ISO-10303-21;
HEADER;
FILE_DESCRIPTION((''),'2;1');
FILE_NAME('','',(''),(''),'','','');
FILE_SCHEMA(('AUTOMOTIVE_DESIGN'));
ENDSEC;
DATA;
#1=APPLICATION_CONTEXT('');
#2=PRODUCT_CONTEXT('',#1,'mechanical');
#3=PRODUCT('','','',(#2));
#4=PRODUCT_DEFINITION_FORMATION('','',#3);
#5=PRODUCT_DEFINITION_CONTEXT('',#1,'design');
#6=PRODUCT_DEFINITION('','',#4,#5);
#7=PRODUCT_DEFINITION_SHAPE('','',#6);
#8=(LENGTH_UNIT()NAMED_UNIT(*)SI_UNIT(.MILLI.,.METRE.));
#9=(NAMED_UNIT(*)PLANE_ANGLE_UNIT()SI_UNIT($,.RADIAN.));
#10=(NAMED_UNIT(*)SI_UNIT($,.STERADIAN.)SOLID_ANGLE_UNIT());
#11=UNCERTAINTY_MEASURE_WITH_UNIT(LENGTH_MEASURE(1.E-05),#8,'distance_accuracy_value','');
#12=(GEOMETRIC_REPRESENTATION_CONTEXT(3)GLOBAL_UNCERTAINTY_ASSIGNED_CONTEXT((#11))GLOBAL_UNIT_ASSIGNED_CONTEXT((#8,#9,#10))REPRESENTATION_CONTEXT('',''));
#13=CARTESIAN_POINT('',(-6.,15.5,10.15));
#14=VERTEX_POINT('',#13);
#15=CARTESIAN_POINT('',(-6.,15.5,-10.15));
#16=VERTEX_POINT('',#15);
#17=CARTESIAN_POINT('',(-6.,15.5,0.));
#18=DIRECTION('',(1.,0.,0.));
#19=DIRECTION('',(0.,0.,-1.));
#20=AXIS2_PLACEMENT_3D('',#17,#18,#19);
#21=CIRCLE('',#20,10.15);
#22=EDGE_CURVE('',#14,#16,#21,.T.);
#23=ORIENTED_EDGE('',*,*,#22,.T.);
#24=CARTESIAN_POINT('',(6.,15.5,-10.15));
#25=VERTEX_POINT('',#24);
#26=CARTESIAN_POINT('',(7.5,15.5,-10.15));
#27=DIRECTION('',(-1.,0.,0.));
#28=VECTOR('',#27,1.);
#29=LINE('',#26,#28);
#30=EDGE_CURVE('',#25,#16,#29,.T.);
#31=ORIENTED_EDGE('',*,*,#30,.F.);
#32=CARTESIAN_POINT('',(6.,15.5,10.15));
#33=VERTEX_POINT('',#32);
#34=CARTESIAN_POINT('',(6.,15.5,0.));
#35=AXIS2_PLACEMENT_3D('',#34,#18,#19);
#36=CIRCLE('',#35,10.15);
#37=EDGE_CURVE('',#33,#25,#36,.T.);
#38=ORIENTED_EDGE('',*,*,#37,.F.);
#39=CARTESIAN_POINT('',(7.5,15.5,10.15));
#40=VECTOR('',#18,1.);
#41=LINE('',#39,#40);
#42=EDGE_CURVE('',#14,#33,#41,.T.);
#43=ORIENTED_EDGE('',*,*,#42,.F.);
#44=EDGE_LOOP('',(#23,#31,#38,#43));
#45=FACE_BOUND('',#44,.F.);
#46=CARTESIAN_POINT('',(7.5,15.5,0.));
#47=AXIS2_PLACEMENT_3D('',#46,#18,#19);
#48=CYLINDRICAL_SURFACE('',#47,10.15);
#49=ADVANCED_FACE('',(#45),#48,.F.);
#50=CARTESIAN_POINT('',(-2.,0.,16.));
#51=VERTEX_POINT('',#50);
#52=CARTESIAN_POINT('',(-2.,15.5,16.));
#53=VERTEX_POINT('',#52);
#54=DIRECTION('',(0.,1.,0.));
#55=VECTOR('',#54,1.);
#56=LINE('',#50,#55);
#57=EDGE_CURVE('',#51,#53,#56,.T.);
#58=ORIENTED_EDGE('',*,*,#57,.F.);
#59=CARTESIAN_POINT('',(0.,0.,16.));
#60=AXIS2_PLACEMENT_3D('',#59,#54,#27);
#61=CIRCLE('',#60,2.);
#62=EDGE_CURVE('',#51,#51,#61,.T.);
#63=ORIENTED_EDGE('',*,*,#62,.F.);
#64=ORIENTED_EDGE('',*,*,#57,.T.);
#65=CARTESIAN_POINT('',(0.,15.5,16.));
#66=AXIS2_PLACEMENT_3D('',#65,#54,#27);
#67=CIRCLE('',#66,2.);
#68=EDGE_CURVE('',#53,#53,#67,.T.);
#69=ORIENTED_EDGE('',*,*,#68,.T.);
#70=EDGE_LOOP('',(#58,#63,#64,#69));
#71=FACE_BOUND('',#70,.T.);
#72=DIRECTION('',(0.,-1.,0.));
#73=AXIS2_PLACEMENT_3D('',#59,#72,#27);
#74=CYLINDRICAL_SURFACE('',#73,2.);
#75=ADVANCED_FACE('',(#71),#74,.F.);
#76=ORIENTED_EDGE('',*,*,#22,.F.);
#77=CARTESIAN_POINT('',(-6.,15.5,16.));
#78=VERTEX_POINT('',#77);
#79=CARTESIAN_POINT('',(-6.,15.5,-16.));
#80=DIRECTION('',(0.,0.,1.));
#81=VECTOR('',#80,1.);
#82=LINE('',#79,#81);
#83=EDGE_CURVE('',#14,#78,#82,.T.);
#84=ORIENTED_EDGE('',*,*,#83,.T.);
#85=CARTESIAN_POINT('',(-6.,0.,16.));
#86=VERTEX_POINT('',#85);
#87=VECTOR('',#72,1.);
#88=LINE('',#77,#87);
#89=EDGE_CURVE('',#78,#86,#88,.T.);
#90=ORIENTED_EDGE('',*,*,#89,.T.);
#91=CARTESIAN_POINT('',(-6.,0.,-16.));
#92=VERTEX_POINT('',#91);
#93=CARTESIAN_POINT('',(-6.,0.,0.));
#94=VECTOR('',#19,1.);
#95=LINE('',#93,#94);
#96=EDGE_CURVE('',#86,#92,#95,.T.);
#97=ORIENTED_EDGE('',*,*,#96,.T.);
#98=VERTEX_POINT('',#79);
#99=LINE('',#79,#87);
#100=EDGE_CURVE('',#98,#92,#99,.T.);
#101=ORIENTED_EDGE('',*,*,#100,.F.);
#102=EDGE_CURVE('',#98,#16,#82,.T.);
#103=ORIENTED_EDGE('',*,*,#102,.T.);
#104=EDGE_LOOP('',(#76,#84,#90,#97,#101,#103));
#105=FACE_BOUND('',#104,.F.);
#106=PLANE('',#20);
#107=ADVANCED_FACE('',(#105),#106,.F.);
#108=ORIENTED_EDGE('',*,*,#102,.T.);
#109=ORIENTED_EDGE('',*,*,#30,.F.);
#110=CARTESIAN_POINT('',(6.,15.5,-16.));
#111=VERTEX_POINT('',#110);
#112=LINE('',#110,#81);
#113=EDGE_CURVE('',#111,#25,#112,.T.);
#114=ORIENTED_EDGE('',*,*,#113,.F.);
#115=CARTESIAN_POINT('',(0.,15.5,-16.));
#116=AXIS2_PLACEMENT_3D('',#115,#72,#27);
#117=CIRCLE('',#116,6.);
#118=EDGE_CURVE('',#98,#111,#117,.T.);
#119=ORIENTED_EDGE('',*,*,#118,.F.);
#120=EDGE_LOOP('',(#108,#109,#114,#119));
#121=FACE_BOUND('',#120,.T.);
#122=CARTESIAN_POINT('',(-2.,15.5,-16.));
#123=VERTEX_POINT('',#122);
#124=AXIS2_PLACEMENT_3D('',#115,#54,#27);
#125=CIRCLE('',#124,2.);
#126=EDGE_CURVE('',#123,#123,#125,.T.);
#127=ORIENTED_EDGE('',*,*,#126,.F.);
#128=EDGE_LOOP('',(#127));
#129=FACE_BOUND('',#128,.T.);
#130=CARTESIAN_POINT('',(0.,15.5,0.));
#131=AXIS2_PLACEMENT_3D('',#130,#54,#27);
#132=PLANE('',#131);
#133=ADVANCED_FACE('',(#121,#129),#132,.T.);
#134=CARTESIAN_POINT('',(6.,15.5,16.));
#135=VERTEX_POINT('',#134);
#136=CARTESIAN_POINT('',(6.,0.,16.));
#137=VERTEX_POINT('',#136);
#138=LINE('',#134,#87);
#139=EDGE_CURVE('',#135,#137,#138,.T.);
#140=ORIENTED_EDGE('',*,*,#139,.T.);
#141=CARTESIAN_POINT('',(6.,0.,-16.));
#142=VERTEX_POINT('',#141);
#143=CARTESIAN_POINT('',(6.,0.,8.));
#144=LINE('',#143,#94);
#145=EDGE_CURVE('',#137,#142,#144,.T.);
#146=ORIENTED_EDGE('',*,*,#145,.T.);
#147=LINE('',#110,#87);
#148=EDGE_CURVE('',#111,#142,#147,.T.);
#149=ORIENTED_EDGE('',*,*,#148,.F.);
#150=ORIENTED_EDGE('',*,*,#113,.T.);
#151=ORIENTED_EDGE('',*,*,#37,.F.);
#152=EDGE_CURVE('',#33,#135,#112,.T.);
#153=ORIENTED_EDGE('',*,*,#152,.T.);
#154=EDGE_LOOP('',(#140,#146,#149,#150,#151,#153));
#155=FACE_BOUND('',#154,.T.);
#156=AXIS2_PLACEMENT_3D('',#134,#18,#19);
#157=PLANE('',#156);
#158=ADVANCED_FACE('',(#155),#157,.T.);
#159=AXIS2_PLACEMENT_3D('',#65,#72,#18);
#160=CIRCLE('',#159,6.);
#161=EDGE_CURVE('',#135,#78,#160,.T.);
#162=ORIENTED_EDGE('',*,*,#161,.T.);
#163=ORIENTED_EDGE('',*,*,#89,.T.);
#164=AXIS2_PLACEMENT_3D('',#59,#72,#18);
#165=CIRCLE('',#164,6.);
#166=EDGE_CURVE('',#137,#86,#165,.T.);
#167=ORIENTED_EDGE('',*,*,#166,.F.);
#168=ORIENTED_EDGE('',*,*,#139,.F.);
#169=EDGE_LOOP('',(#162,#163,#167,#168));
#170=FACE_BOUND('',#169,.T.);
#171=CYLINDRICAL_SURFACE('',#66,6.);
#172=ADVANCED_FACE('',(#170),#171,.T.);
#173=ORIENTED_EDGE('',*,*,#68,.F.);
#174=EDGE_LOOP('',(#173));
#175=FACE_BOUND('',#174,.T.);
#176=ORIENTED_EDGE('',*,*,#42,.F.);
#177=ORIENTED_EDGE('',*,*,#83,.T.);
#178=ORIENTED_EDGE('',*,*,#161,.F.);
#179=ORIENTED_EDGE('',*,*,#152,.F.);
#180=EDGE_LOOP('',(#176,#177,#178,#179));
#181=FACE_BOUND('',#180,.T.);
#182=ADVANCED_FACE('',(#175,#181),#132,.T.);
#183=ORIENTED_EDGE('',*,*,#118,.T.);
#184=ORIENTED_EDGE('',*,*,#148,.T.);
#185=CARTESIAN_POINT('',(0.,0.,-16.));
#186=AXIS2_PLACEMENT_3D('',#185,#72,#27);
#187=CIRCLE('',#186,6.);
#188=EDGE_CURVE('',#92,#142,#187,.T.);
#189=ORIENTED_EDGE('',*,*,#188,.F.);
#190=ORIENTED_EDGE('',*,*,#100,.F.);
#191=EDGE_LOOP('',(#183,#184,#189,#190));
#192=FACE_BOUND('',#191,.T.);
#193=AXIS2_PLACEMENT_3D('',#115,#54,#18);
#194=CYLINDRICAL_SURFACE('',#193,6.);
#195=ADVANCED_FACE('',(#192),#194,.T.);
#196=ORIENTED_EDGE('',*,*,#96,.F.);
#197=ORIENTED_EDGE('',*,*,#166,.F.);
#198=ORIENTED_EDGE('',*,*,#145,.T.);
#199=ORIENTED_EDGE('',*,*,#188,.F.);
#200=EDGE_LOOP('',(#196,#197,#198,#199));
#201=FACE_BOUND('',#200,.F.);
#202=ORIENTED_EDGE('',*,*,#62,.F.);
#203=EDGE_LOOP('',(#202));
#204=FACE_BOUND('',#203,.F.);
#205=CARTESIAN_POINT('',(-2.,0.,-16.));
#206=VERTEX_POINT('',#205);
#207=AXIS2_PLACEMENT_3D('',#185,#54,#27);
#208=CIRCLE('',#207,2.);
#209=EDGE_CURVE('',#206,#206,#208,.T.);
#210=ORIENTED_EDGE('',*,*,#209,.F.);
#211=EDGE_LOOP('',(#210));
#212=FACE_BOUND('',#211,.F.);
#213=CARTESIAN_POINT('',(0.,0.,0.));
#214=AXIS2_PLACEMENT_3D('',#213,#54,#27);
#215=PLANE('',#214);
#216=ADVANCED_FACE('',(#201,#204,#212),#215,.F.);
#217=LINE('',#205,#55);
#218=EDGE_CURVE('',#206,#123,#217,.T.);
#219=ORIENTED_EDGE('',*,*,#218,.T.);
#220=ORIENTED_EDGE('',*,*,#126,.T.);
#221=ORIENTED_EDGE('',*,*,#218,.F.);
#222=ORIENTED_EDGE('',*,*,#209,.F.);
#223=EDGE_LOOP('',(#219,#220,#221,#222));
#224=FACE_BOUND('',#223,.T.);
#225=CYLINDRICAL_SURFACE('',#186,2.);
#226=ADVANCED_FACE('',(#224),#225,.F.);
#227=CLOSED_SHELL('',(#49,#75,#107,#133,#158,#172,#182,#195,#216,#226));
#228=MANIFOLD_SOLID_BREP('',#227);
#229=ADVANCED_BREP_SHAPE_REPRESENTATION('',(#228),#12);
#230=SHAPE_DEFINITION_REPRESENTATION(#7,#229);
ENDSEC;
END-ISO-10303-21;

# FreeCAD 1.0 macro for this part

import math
import FreeCAD as App
import Part
import Sketcher
from FreeCAD import Vector
Q = App.Units.Quantity

doc = App.newDocument("Part")
body = doc.addObject("PartDesign::Body", "Body")

# Sketch on XZ plane
sketch1 = doc.addObject("Sketcher::SketchObject", "Sketch")
body.addObject(sketch1)
sketch1.AttachmentSupport = (doc.XZ_Plane, [""])
sketch1.MapMode = "FlatFace"
sketch1.addGeometry(Part.LineSegment(Vector(-7.5, -22, 0), Vector(-7.5, 22, 0)), False)
sketch1.addGeometry(Part.LineSegment(Vector(-7.5, 22, 0), Vector(7.5, 22, 0)), False)
sketch1.addGeometry(Part.LineSegment(Vector(7.5, 22, 0), Vector(7.5, -22, 0)), False)
sketch1.addGeometry(Part.LineSegment(Vector(7.5, -22, 0), Vector(-7.5, -22, 0)), False)
sketch1.addGeometry(Part.Circle(Vector(0, -16, 0), Vector(0, 0, 1), 2), False)
sketch1.addGeometry(Part.Circle(Vector(0, 16, 0), Vector(0, 0, 1), 2), False)
sketch1.addConstraint(Sketcher.Constraint("Coincident", 0, 2, 1, 1))
sketch1.addConstraint(Sketcher.Constraint("Coincident", 1, 2, 2, 1))
sketch1.addConstraint(Sketcher.Constraint("Coincident", 2, 2, 3, 1))
sketch1.addConstraint(Sketcher.Constraint("Coincident", 3, 2, 0, 1))
sketch1.addConstraint(Sketcher.Constraint("Vertical", 0))
sketch1.addConstraint(Sketcher.Constraint("Horizontal", 1))
sketch1.addConstraint(Sketcher.Constraint("Vertical", 2))
sketch1.addConstraint(Sketcher.Constraint("Horizontal", 3))
sketch1.addConstraint(Sketcher.Constraint("Equal", 4, 5))
sketch1.addConstraint(Sketcher.Constraint("Symmetric", 4, 3, 5, 3, -1, 1))
sketch1.addConstraint(Sketcher.Constraint("Symmetric", 0, 2, 2, 2, -1, 1))
sketch1.addConstraint(Sketcher.Constraint("PointOnObject", 4, 3, -2))
sketch1.addConstraint(Sketcher.Constraint("Diameter", 4, Q("4 mm")))
sketch1.addConstraint(Sketcher.Constraint("DistanceX", 1, 1, 1, 2, Q("15 mm")))
sketch1.addConstraint(Sketcher.Constraint("DistanceY", 0, 1, 0, 2, Q("44 mm")))
sketch1.addConstraint(Sketcher.Constraint("DistanceY", 4, 3, -1, 1, Q("16 mm")))
pad1 = doc.addObject("PartDesign::Pad", "Pad")
body.addObject(pad1)
pad1.Profile = sketch1
pad1.Length = 15.5
pad1.Reversed = True

# Sketch on YZ plane
sketch2 = doc.addObject("Sketcher::SketchObject", "Sketch001")
body.addObject(sketch2)
sketch2.AttachmentSupport = (doc.YZ_Plane, [""])
sketch2.MapMode = "FlatFace"
sketch2.AttachmentOffset = App.Placement(Vector(0, 0, 7.5), App.Rotation())
sketch2.addGeometry(Part.Circle(Vector(16, 0, 0), Vector(0, 0, 1), 10), False)
sketch2.addConstraint(Sketcher.Constraint("PointOnObject", 0, 3, -1))
sketch2.addConstraint(Sketcher.Constraint("Diameter", 0, Q("20.3 mm")))
sketch2.addConstraint(Sketcher.Constraint("DistanceX", -1, 1, 0, 3, Q("15.5 mm")))
pocket1 = doc.addObject("PartDesign::Pocket", "Pocket")
body.addObject(pocket1)
pocket1.Profile = sketch2
pocket1.Type = "ThroughAll"

# Sketch on XZ plane
sketch3 = doc.addObject("Sketcher::SketchObject", "Sketch002")
body.addObject(sketch3)
sketch3.AttachmentSupport = (doc.XZ_Plane, [""])
sketch3.MapMode = "FlatFace"
sketch3.AttachmentOffset = App.Placement(Vector(0, 0, -15.5), App.Rotation())
sketch3.addGeometry(Part.LineSegment(Vector(-6, 16, 0), Vector(-6, -16, 0)), False)
sketch3.addGeometry(Part.ArcOfCircle(Part.Circle(Vector(0, -16, 0), Vector(0, 0, 1), 6), math.radians(180), math.radians(270)), False)
sketch3.addGeometry(Part.LineSegment(Vector(0, -22, 0), Vector(-8, -22, 0)), False)
sketch3.addGeometry(Part.LineSegment(Vector(-8, -22, 0), Vector(-8, 22, 0)), False)
sketch3.addGeometry(Part.LineSegment(Vector(-8, 22, 0), Vector(0, 22, 0)), False)
sketch3.addGeometry(Part.ArcOfCircle(Part.Circle(Vector(0, 16, 0), Vector(0, 0, 1), 6), math.radians(90), math.radians(180)), False)
sketch3.addGeometry(Part.LineSegment(Vector(6, -16, 0), Vector(6, 16, 0)), False)
sketch3.addGeometry(Part.ArcOfCircle(Part.Circle(Vector(0, 16, 0), Vector(0, 0, 1), 6), math.radians(0), math.radians(90)), False)
sketch3.addGeometry(Part.LineSegment(Vector(0, 22, 0), Vector(8, 22, 0)), False)
sketch3.addGeometry(Part.LineSegment(Vector(8, 22, 0), Vector(8, -22, 0)), False)
sketch3.addGeometry(Part.LineSegment(Vector(8, -22, 0), Vector(0, -22, 0)), False)
sketch3.addGeometry(Part.ArcOfCircle(Part.Circle(Vector(0, -16, 0), Vector(0, 0, 1), 6), math.radians(-90), math.radians(0)), False)
sketch3.addConstraint(Sketcher.Constraint("Tangent", 0, 2, 1, 1))
sketch3.addConstraint(Sketcher.Constraint("Tangent", 1, 2, 2, 1))
sketch3.addConstraint(Sketcher.Constraint("Coincident", 2, 2, 3, 1))
sketch3.addConstraint(Sketcher.Constraint("Coincident", 3, 2, 4, 1))
sketch3.addConstraint(Sketcher.Constraint("Tangent", 4, 2, 5, 1))
sketch3.addConstraint(Sketcher.Constraint("Tangent", 5, 2, 0, 1))
sketch3.addConstraint(Sketcher.Constraint("Tangent", 6, 2, 7, 1))
sketch3.addConstraint(Sketcher.Constraint("Tangent", 7, 2, 8, 1))
sketch3.addConstraint(Sketcher.Constraint("Coincident", 8, 2, 9, 1))
sketch3.addConstraint(Sketcher.Constraint("Coincident", 9, 2, 10, 1))
sketch3.addConstraint(Sketcher.Constraint("Tangent", 10, 2, 11, 1))
sketch3.addConstraint(Sketcher.Constraint("Tangent", 11, 2, 6, 1))
sketch3.addConstraint(Sketcher.Constraint("Vertical", 0))
sketch3.addConstraint(Sketcher.Constraint("Horizontal", 2))
sketch3.addConstraint(Sketcher.Constraint("Vertical", 3))
sketch3.addConstraint(Sketcher.Constraint("Horizontal", 4))
sketch3.addConstraint(Sketcher.Constraint("Vertical", 6))
sketch3.addConstraint(Sketcher.Constraint("Horizontal", 8))
sketch3.addConstraint(Sketcher.Constraint("Vertical", 9))
sketch3.addConstraint(Sketcher.Constraint("Horizontal", 10))
sketch3.addConstraint(Sketcher.Constraint("Coincident", 7, 3, 5, 3))
sketch3.addConstraint(Sketcher.Constraint("Coincident", 11, 3, 1, 3))
sketch3.addConstraint(Sketcher.Constraint("Equal", 1, 5))
sketch3.addConstraint(Sketcher.Constraint("Equal", 5, 7))
sketch3.addConstraint(Sketcher.Constraint("Symmetric", 1, 3, 5, 3, -1, 1))
sketch3.addConstraint(Sketcher.Constraint("Equal", 4, 8))
sketch3.addConstraint(Sketcher.Constraint("Radius", 1, Q("6 mm")))
sketch3.addConstraint(Sketcher.Constraint("DistanceY", 0, 2, 0, 1, Q("32 mm")))
sketch3.addConstraint(Sketcher.Constraint("DistanceX", 2, 2, 2, 1, Q("7.5 mm")))
pocket2 = doc.addObject("PartDesign::Pocket", "Pocket001")
body.addObject(pocket2)
pocket2.Profile = sketch3
pocket2.Type = "ThroughAll"
pocket2.Reversed = True

doc.recompute()
